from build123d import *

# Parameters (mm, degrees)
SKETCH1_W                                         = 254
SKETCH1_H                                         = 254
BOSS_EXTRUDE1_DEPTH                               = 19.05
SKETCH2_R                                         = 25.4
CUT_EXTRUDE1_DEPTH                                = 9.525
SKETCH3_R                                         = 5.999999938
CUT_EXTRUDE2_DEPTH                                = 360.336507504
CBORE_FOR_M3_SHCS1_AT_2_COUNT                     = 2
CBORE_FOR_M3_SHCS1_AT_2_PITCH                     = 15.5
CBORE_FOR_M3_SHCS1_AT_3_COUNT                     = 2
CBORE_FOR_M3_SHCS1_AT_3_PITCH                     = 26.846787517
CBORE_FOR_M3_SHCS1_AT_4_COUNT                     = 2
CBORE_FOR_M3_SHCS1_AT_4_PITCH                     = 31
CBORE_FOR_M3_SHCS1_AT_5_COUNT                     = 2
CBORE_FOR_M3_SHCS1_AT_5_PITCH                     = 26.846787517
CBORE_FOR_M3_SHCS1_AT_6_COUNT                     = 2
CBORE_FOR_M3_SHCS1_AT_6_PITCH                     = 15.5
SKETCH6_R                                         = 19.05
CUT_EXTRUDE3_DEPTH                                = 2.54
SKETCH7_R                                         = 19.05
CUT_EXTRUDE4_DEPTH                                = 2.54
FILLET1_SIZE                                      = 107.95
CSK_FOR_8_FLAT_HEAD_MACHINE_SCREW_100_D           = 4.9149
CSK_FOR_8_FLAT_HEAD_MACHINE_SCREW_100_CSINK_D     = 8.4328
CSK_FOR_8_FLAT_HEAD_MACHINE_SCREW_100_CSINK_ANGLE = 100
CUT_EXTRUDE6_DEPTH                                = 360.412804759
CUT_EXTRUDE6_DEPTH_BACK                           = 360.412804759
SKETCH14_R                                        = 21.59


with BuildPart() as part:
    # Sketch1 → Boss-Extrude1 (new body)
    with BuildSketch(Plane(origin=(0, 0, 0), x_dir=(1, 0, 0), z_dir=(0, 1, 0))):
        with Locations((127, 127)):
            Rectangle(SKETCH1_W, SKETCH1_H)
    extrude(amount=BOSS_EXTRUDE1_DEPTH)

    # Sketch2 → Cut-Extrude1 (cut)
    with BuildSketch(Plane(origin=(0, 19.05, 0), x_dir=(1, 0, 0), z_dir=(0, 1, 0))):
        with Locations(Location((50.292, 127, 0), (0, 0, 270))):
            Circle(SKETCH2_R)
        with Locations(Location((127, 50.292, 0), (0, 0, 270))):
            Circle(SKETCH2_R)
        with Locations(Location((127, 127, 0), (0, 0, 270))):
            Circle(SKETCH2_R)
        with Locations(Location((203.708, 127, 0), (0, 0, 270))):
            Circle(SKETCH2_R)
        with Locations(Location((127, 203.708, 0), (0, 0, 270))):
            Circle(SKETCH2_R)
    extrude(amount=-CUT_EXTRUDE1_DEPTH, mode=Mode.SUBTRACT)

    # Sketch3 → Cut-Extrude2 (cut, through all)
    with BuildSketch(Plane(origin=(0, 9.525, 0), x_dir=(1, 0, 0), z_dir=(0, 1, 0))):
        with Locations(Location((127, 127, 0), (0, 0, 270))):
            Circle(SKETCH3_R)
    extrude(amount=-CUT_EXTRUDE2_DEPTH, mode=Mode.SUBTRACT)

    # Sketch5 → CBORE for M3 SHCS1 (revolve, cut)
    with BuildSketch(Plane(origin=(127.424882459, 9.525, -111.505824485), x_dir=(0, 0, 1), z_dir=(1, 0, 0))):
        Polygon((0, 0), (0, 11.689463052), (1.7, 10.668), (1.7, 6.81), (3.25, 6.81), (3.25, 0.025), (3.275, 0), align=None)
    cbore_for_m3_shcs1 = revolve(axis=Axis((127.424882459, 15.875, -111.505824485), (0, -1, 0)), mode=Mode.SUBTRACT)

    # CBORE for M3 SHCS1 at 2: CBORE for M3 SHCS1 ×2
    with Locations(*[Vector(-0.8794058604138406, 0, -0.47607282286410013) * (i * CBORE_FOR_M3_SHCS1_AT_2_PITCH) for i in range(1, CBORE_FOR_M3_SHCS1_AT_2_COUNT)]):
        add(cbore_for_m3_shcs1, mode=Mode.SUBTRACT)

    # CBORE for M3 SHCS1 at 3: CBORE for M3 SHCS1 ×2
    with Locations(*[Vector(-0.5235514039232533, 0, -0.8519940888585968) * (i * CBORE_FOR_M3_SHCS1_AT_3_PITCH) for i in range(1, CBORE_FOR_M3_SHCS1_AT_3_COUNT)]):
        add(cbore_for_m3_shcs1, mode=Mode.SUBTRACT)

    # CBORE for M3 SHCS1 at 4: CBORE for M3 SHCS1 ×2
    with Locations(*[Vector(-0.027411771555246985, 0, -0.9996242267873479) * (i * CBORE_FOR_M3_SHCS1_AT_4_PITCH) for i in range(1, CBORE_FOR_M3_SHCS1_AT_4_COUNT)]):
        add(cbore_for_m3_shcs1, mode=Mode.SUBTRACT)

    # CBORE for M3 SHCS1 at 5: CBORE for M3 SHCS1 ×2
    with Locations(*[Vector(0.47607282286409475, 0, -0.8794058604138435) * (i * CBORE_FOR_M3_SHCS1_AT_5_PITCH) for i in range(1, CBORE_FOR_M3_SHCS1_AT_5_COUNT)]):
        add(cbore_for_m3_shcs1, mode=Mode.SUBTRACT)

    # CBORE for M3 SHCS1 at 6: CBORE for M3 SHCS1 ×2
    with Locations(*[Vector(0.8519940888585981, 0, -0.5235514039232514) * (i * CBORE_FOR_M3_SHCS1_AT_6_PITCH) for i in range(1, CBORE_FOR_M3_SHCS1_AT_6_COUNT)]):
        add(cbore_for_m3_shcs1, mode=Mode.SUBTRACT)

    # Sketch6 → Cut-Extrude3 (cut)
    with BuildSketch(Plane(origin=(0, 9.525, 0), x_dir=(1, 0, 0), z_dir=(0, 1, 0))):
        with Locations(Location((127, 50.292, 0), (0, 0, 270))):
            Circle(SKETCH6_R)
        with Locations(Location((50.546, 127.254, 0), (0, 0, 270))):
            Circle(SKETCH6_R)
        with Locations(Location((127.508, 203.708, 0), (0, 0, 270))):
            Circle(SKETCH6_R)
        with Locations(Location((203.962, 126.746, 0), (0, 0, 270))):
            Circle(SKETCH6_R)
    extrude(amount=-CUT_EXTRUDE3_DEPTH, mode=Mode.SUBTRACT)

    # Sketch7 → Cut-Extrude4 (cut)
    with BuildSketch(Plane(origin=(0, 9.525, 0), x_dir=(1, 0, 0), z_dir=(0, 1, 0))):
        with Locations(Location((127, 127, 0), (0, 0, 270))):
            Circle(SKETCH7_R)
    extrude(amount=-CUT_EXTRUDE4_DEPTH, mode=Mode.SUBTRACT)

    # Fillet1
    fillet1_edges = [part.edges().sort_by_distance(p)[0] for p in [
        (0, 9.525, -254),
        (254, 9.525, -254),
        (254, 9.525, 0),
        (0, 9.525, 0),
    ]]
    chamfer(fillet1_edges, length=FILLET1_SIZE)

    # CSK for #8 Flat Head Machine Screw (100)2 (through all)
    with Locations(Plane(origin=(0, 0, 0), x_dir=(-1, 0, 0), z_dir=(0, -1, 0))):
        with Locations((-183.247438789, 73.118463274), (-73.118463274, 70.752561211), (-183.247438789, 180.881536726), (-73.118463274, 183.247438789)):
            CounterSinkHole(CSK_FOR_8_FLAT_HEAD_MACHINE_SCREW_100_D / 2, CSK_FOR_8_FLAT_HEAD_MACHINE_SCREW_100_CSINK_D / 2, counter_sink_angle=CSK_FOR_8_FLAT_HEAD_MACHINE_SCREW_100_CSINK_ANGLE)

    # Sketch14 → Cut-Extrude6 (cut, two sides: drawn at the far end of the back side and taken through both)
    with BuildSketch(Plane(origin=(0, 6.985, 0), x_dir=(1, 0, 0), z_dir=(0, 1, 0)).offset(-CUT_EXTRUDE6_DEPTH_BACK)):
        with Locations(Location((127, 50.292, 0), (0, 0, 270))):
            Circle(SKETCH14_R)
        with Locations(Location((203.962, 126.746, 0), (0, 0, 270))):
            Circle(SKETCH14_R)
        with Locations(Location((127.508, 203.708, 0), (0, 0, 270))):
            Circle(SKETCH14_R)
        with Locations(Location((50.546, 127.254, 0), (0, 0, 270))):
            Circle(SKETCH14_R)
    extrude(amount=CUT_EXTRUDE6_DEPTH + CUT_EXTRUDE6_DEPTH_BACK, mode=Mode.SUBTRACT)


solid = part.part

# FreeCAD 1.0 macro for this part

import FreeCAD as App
import Part
import Sketcher
Q = App.Units.Quantity


def edges_at(feature, points):
    """Names of the edges that pass closest to the given points."""
    edges = feature.Shape.Edges
    near = lambda p: min(range(len(edges)), key=lambda i: edges[i].distToShape(Part.Vertex(*p))[0])
    return sorted({f"Edge{near(p) + 1}" for p in points})

doc = App.newDocument("Part")
params = doc.addObject("Spreadsheet::Sheet", "Params")
for row, (alias, value) in enumerate([
    ("sketch1_width", "10 in"),
    ("pad1_length", "0.75 in"),
    ("sketch2_diameter", "2 in"),
    ("pocket1_length", "0.375 in"),
    ("groove_angle", "360 deg"),
    ("linearpattern_pitch", "15.5 mm"),
    ("linearpattern2_pitch", "26.846788 mm"),
    ("linearpattern3_pitch", "31 mm"),
    ("linearpattern4_pitch", "26.846788 mm"),
    ("linearpattern5_pitch", "15.5 mm"),
    ("sketch5_diameter", "1.5 in"),
    ("pocket3_length", "0.1 in"),
    ("sketch6_diameter", "1.5 in"),
    ("pocket4_length", "0.1 in"),
    ("chamfer_size", "4.25 in"),
    ("hole_diameter", "0.1935 in"),
    ("hole_csink_diameter", "0.332 in"),
    ("sketch8_diameter", "1.7 in"),
], start=1):
    params.set(f"A{row}", alias)
    params.set(f"B{row}", "=" + value)
    params.setAlias(f"B{row}", alias)

body = doc.addObject("PartDesign::Body", "Body")

# Sketch on XZ plane
sketch1 = body.newObject("Sketcher::SketchObject", "Sketch")
sketch1.AttachmentSupport = (doc.getObject("XZ_Plane"), [""])
sketch1.MapMode = "FlatFace"
sketch1.addGeometry(Part.LineSegment(App.Vector(0, -254, 0), App.Vector(0, 0, 0)), False)
sketch1.addGeometry(Part.LineSegment(App.Vector(0, 0, 0), App.Vector(254, 0, 0)), False)
sketch1.addGeometry(Part.LineSegment(App.Vector(254, 0, 0), App.Vector(254, -254, 0)), False)
sketch1.addGeometry(Part.LineSegment(App.Vector(254, -254, 0), App.Vector(0, -254, 0)), False)
sketch1.addConstraint(Sketcher.Constraint("Coincident", 0, 2, 1, 1))
sketch1.addConstraint(Sketcher.Constraint("Coincident", 1, 2, 2, 1))
sketch1.addConstraint(Sketcher.Constraint("Coincident", 2, 2, 3, 1))
sketch1.addConstraint(Sketcher.Constraint("Coincident", 3, 2, 0, 1))
sketch1.addConstraint(Sketcher.Constraint("Vertical", 0))
sketch1.addConstraint(Sketcher.Constraint("Horizontal", 1))
sketch1.addConstraint(Sketcher.Constraint("Vertical", 2))
sketch1.addConstraint(Sketcher.Constraint("Horizontal", 3))
sketch1.addConstraint(Sketcher.Constraint("Coincident", 0, 2, -1, 1))
sketch1.addConstraint(Sketcher.Constraint("Equal", 3, 0))
sketch1.addConstraint(Sketcher.Constraint("DistanceX", 1, 1, 1, 2, Q("10 in")))
sketch1.setExpression("Constraints[10]", "Params.sketch1_width")
pad1 = body.newObject("PartDesign::Pad", "Pad")
pad1.Profile = sketch1
pad1.setExpression("Length", "Params.pad1_length")
pad1.Reversed = True

# Sketch on XZ plane
sketch2 = body.newObject("Sketcher::SketchObject", "Sketch001")
sketch2.AttachmentSupport = (doc.getObject("XZ_Plane"), [""])
sketch2.MapMode = "FlatFace"
sketch2.AttachmentOffset = App.Placement(App.Vector(0, 0, -0.75 * 25.4), App.Rotation())
sketch2.addGeometry(Part.Circle(App.Vector(50, -127, 0), App.Vector(0, 0, 1), 25), False)
sketch2.addGeometry(Part.Circle(App.Vector(127, -50, 0), App.Vector(0, 0, 1), 25), False)
sketch2.addGeometry(Part.Circle(App.Vector(127, -127, 0), App.Vector(0, 0, 1), 25), False)
sketch2.addGeometry(Part.Circle(App.Vector(204, -127, 0), App.Vector(0, 0, 1), 25), False)
sketch2.addGeometry(Part.Circle(App.Vector(127, -204, 0), App.Vector(0, 0, 1), 25), False)
sketch2.addConstraint(Sketcher.Constraint("Equal", 0, 1))
sketch2.addConstraint(Sketcher.Constraint("Equal", 1, 2))
sketch2.addConstraint(Sketcher.Constraint("Equal", 2, 3))
sketch2.addConstraint(Sketcher.Constraint("Equal", 3, 4))
sketch2.addConstraint(Sketcher.Constraint("Horizontal", 0, 3, 2, 3))
sketch2.addConstraint(Sketcher.Constraint("Horizontal", 2, 3, 3, 3))
sketch2.addConstraint(Sketcher.Constraint("Vertical", 1, 3, 2, 3))
sketch2.addConstraint(Sketcher.Constraint("Vertical", 2, 3, 4, 3))
sketch2.addConstraint(Sketcher.Constraint("Diameter", 0, Q("2 in")))
sketch2.addConstraint(Sketcher.Constraint("DistanceY", 0, 3, -1, 1, Q("5 in")))
sketch2.addConstraint(Sketcher.Constraint("DistanceX", -1, 1, 1, 3, Q("5 in")))
sketch2.addConstraint(Sketcher.Constraint("DistanceX", -1, 1, 0, 3, Q("1.98 in")))
sketch2.addConstraint(Sketcher.Constraint("DistanceY", 1, 3, -1, 1, Q("1.98 in")))
sketch2.addConstraint(Sketcher.Constraint("DistanceX", -1, 1, 3, 3, Q("8.02 in")))
sketch2.addConstraint(Sketcher.Constraint("DistanceY", 4, 3, -1, 1, Q("8.02 in")))
sketch2.setExpression("Constraints[8]", "Params.sketch2_diameter")
pocket1 = body.newObject("PartDesign::Pocket", "Pocket")
pocket1.Profile = sketch2
pocket1.setExpression("Length", "Params.pocket1_length")
pocket1.Reversed = True

# Sketch on XZ plane
sketch3 = body.newObject("Sketcher::SketchObject", "Sketch002")
sketch3.AttachmentSupport = (doc.getObject("XZ_Plane"), [""])
sketch3.MapMode = "FlatFace"
sketch3.AttachmentOffset = App.Placement(App.Vector(0, 0, -0.375 * 25.4), App.Rotation())
sketch3.addGeometry(Part.Circle(App.Vector(127, -127, 0), App.Vector(0, 0, 1), 6), False)
sketch3.addConstraint(Sketcher.Constraint("DistanceX", -1, 1, 0, 3, Q("5 in")))
sketch3.addConstraint(Sketcher.Constraint("DistanceY", 0, 3, -1, 1, Q("5 in")))
sketch3.addConstraint(Sketcher.Constraint("Diameter", 0, 12.0))
pocket2 = body.newObject("PartDesign::Pocket", "Pocket001")
pocket2.Profile = sketch3
pocket2.Type = "ThroughAll"
pocket2.Reversed = True

# Sketch on YZ plane
sketch4 = body.newObject("Sketcher::SketchObject", "Sketch003")
sketch4.AttachmentSupport = (doc.getObject("YZ_Plane"), [""])
sketch4.MapMode = "FlatFace"
sketch4.AttachmentOffset = App.Placement(App.Vector(0, 0, 127.424882), App.Rotation())
sketch4.addGeometry(Part.LineSegment(App.Vector(-2.164463, -111.505824, 0), App.Vector(9.525, -111.505824, 0)), False)
sketch4.addGeometry(Part.LineSegment(App.Vector(9.525, -111.505824, 0), App.Vector(9.525, -108.230824, 0)), False)
sketch4.addGeometry(Part.LineSegment(App.Vector(9.525, -108.230824, 0), App.Vector(9.5, -108.255824, 0)), False)
sketch4.addGeometry(Part.LineSegment(App.Vector(9.5, -108.255824, 0), App.Vector(2.715, -108.255824, 0)), False)
sketch4.addGeometry(Part.LineSegment(App.Vector(2.715, -108.255824, 0), App.Vector(2.715, -109.805824, 0)), False)
sketch4.addGeometry(Part.LineSegment(App.Vector(2.715, -109.805824, 0), App.Vector(-1.143, -109.805824, 0)), False)
sketch4.addGeometry(Part.LineSegment(App.Vector(-1.143, -109.805824, 0), App.Vector(-2.164463, -111.505824, 0)), False)
sketch4.addGeometry(Part.LineSegment(App.Vector(9.525, -111.505824, 0), App.Vector(-2.164463, -111.505824, 0)), True)  # axis
sketch4.addConstraint(Sketcher.Constraint("Coincident", 0, 2, 1, 1))
sketch4.addConstraint(Sketcher.Constraint("Coincident", 1, 2, 2, 1))
sketch4.addConstraint(Sketcher.Constraint("Coincident", 2, 2, 3, 1))
sketch4.addConstraint(Sketcher.Constraint("Coincident", 3, 2, 4, 1))
sketch4.addConstraint(Sketcher.Constraint("Coincident", 4, 2, 5, 1))
sketch4.addConstraint(Sketcher.Constraint("Coincident", 5, 2, 6, 1))
sketch4.addConstraint(Sketcher.Constraint("Coincident", 6, 2, 0, 1))
sketch4.addConstraint(Sketcher.Constraint("Horizontal", 0))
sketch4.addConstraint(Sketcher.Constraint("Vertical", 1))
sketch4.addConstraint(Sketcher.Constraint("Horizontal", 3))
sketch4.addConstraint(Sketcher.Constraint("Vertical", 4))
sketch4.addConstraint(Sketcher.Constraint("Horizontal", 5))
sketch4.addConstraint(Sketcher.Constraint("Horizontal", 7))
sketch4.addConstraint(Sketcher.Constraint("Coincident", 7, 1, 0, 2))
sketch4.addConstraint(Sketcher.Constraint("Equal", 0, 7))
sketch4.addConstraint(Sketcher.Constraint("Angle", 2, Q("-135 deg")))
sketch4.addConstraint(Sketcher.Constraint("Angle", 6, Q("-121 deg")))
sketch4.addConstraint(Sketcher.Constraint("DistanceX", 5, 2, 1, 2, Q("0.42 in")))
sketch4.addConstraint(Sketcher.Constraint("DistanceX", -1, 1, 0, 2, Q("0.375 in")))
sketch4.addConstraint(Sketcher.Constraint("DistanceX", 3, 2, 3, 1, 6.785))
sketch4.addConstraint(Sketcher.Constraint("DistanceX", 5, 2, 5, 1, 3.858))
sketch4.addConstraint(Sketcher.Constraint("DistanceY", 1, 1, 1, 2, 3.275))
sketch4.addConstraint(Sketcher.Constraint("DistanceY", 4, 2, 4, 1, 1.55))
sketch4.addConstraint(Sketcher.Constraint("DistanceY", 0, 2, -1, 1, 111.505824))
groove = body.newObject("PartDesign::Groove", "Groove")
groove.Profile = sketch4
groove.ReferenceAxis = (sketch4, ["Axis0"])
groove.setExpression("Angle", "Params.groove_angle")
doc.recompute()

datumline = body.newObject("PartDesign::Line", "DatumLine")
datumline.Placement = App.Placement(App.Vector(0, 0, 0), App.Rotation(App.Vector(0, 0, 1), App.Vector(-0.87940586, 0, -0.476072823)))
linearpattern = body.newObject("PartDesign::LinearPattern", "LinearPattern")
linearpattern.Originals = [groove]
linearpattern.Direction = (datumline, [""])
linearpattern.Mode = "offset"
linearpattern.setExpression("Offset", "Params.linearpattern_pitch")
linearpattern.Occurrences = 2
body.Tip = linearpattern
doc.recompute()

datumline2 = body.newObject("PartDesign::Line", "DatumLine001")
datumline2.Placement = App.Placement(App.Vector(0, 0, 0), App.Rotation(App.Vector(0, 0, 1), App.Vector(-0.523551404, 0, -0.851994089)))
linearpattern2 = body.newObject("PartDesign::LinearPattern", "LinearPattern001")
linearpattern2.Originals = [groove]
linearpattern2.Direction = (datumline2, [""])
linearpattern2.Mode = "offset"
linearpattern2.setExpression("Offset", "Params.linearpattern2_pitch")
linearpattern2.Occurrences = 2
body.Tip = linearpattern2
doc.recompute()

datumline3 = body.newObject("PartDesign::Line", "DatumLine002")
datumline3.Placement = App.Placement(App.Vector(0, 0, 0), App.Rotation(App.Vector(0, 0, 1), App.Vector(-0.027411772, 0, -0.999624227)))
linearpattern3 = body.newObject("PartDesign::LinearPattern", "LinearPattern002")
linearpattern3.Originals = [groove]
linearpattern3.Direction = (datumline3, [""])
linearpattern3.Mode = "offset"
linearpattern3.setExpression("Offset", "Params.linearpattern3_pitch")
linearpattern3.Occurrences = 2
body.Tip = linearpattern3
doc.recompute()

datumline4 = body.newObject("PartDesign::Line", "DatumLine003")
datumline4.Placement = App.Placement(App.Vector(0, 0, 0), App.Rotation(App.Vector(0, 0, 1), App.Vector(0.476072823, 0, -0.87940586)))
linearpattern4 = body.newObject("PartDesign::LinearPattern", "LinearPattern003")
linearpattern4.Originals = [groove]
linearpattern4.Direction = (datumline4, [""])
linearpattern4.Mode = "offset"
linearpattern4.setExpression("Offset", "Params.linearpattern4_pitch")
linearpattern4.Occurrences = 2
body.Tip = linearpattern4
doc.recompute()

datumline5 = body.newObject("PartDesign::Line", "DatumLine004")
datumline5.Placement = App.Placement(App.Vector(0, 0, 0), App.Rotation(App.Vector(0, 0, 1), App.Vector(0.851994089, 0, -0.523551404)))
linearpattern5 = body.newObject("PartDesign::LinearPattern", "LinearPattern004")
linearpattern5.Originals = [groove]
linearpattern5.Direction = (datumline5, [""])
linearpattern5.Mode = "offset"
linearpattern5.setExpression("Offset", "Params.linearpattern5_pitch")
linearpattern5.Occurrences = 2
body.Tip = linearpattern5

# Sketch on XZ plane
sketch5 = body.newObject("Sketcher::SketchObject", "Sketch004")
sketch5.AttachmentSupport = (doc.getObject("XZ_Plane"), [""])
sketch5.MapMode = "FlatFace"
sketch5.AttachmentOffset = App.Placement(App.Vector(0, 0, -0.375 * 25.4), App.Rotation())
sketch5.addGeometry(Part.Circle(App.Vector(127, -50, 0), App.Vector(0, 0, 1), 19), False)
sketch5.addGeometry(Part.Circle(App.Vector(51, -127, 0), App.Vector(0, 0, 1), 19), False)
sketch5.addGeometry(Part.Circle(App.Vector(128, -204, 0), App.Vector(0, 0, 1), 19), False)
sketch5.addGeometry(Part.Circle(App.Vector(204, -127, 0), App.Vector(0, 0, 1), 19), False)
sketch5.addConstraint(Sketcher.Constraint("Equal", 0, 1))
sketch5.addConstraint(Sketcher.Constraint("Equal", 1, 2))
sketch5.addConstraint(Sketcher.Constraint("Equal", 2, 3))
sketch5.addConstraint(Sketcher.Constraint("Diameter", 0, Q("1.5 in")))
sketch5.addConstraint(Sketcher.Constraint("DistanceX", -1, 1, 0, 3, Q("5 in")))
sketch5.addConstraint(Sketcher.Constraint("DistanceY", 0, 3, -1, 1, Q("1.98 in")))
sketch5.addConstraint(Sketcher.Constraint("DistanceX", -1, 1, 1, 3, Q("1.99 in")))
sketch5.addConstraint(Sketcher.Constraint("DistanceY", 1, 3, -1, 1, Q("5.01 in")))
sketch5.addConstraint(Sketcher.Constraint("DistanceX", -1, 1, 2, 3, Q("5.02 in")))
sketch5.addConstraint(Sketcher.Constraint("DistanceY", 2, 3, -1, 1, Q("8.02 in")))
sketch5.addConstraint(Sketcher.Constraint("DistanceX", -1, 1, 3, 3, Q("8.03 in")))
sketch5.addConstraint(Sketcher.Constraint("DistanceY", 3, 3, -1, 1, Q("4.99 in")))
sketch5.setExpression("Constraints[3]", "Params.sketch5_diameter")
pocket3 = body.newObject("PartDesign::Pocket", "Pocket002")
pocket3.Profile = sketch5
pocket3.setExpression("Length", "Params.pocket3_length")
pocket3.Reversed = True

# Sketch on XZ plane
sketch6 = body.newObject("Sketcher::SketchObject", "Sketch005")
sketch6.AttachmentSupport = (doc.getObject("XZ_Plane"), [""])
sketch6.MapMode = "FlatFace"
sketch6.AttachmentOffset = App.Placement(App.Vector(0, 0, -0.375 * 25.4), App.Rotation())
sketch6.addGeometry(Part.Circle(App.Vector(127, -127, 0), App.Vector(0, 0, 1), 19), False)
sketch6.addConstraint(Sketcher.Constraint("Diameter", 0, Q("1.5 in")))
sketch6.addConstraint(Sketcher.Constraint("DistanceX", -1, 1, 0, 3, Q("5 in")))
sketch6.addConstraint(Sketcher.Constraint("DistanceY", 0, 3, -1, 1, Q("5 in")))
sketch6.setExpression("Constraints[0]", "Params.sketch6_diameter")
pocket4 = body.newObject("PartDesign::Pocket", "Pocket003")
pocket4.Profile = sketch6
pocket4.setExpression("Length", "Params.pocket4_length")
pocket4.Reversed = True
doc.recompute()

chamfer = body.newObject("PartDesign::Chamfer", "Chamfer")
chamfer.Base = (pocket4, edges_at(pocket4, [
    (0, 9.525, -254),
    (254, 9.525, -254),
    (254, 9.525, 0),
    (0, 9.525, 0),
]))
chamfer.setExpression("Size", "Params.chamfer_size")

# Sketch on XZ plane
sketch7 = body.newObject("Sketcher::SketchObject", "Sketch006")
sketch7.AttachmentSupport = (doc.getObject("XZ_Plane"), [""])
sketch7.MapMode = "FlatFace"
sketch7.addGeometry(Part.Circle(App.Vector(183.2, -73.1, 0), App.Vector(0, 0, 1), 2.5), False)
sketch7.addGeometry(Part.Circle(App.Vector(73.1, -70.8, 0), App.Vector(0, 0, 1), 2.5), False)
sketch7.addGeometry(Part.Circle(App.Vector(183.2, -180.9, 0), App.Vector(0, 0, 1), 2.5), False)
sketch7.addGeometry(Part.Circle(App.Vector(73.1, -183.2, 0), App.Vector(0, 0, 1), 2.5), False)
sketch7.addConstraint(Sketcher.Constraint("Equal", 0, 1))
sketch7.addConstraint(Sketcher.Constraint("Equal", 1, 2))
sketch7.addConstraint(Sketcher.Constraint("Equal", 2, 3))
sketch7.addConstraint(Sketcher.Constraint("Vertical", 0, 3, 2, 3))
sketch7.addConstraint(Sketcher.Constraint("Vertical", 1, 3, 3, 3))
sketch7.addConstraint(Sketcher.Constraint("Diameter", 0, Q("0.1935 in")))
sketch7.addConstraint(Sketcher.Constraint("DistanceX", -1, 1, 0, 3, 183.247439))
sketch7.addConstraint(Sketcher.Constraint("DistanceY", 1, 3, -1, 1, 70.752561))
sketch7.addConstraint(Sketcher.Constraint("DistanceY", 3, 3, -1, 1, 183.247439))
sketch7.addConstraint(Sketcher.Constraint("DistanceY", 0, 3, -1, 1, 73.118463))
sketch7.addConstraint(Sketcher.Constraint("DistanceX", -1, 1, 1, 3, 73.118463))
sketch7.addConstraint(Sketcher.Constraint("DistanceY", 2, 3, -1, 1, 180.881537))
doc.recompute()
hole = body.newObject("PartDesign::Hole", "Hole")
hole.Profile = sketch7
hole.ThreadType = "None"
hole.setExpression("Diameter", "Params.hole_diameter")
hole.DepthType = "ThroughAll"
hole.HoleCutType = "Countersink"
hole.setExpression("HoleCutDiameter", "Params.hole_csink_diameter")
hole.HoleCutCountersinkAngle = 100

# Sketch on XZ plane
sketch8 = body.newObject("Sketcher::SketchObject", "Sketch007")
sketch8.AttachmentSupport = (doc.getObject("XZ_Plane"), [""])
sketch8.MapMode = "FlatFace"
sketch8.AttachmentOffset = App.Placement(App.Vector(0, 0, -0.275 * 25.4), App.Rotation())
sketch8.addGeometry(Part.Circle(App.Vector(127, -50, 0), App.Vector(0, 0, 1), 22), False)
sketch8.addGeometry(Part.Circle(App.Vector(204, -127, 0), App.Vector(0, 0, 1), 22), False)
sketch8.addGeometry(Part.Circle(App.Vector(128, -204, 0), App.Vector(0, 0, 1), 22), False)
sketch8.addGeometry(Part.Circle(App.Vector(51, -127, 0), App.Vector(0, 0, 1), 22), False)
sketch8.addConstraint(Sketcher.Constraint("Equal", 0, 1))
sketch8.addConstraint(Sketcher.Constraint("Equal", 1, 2))
sketch8.addConstraint(Sketcher.Constraint("Equal", 2, 3))
sketch8.addConstraint(Sketcher.Constraint("Diameter", 0, Q("1.7 in")))
sketch8.addConstraint(Sketcher.Constraint("DistanceX", -1, 1, 0, 3, Q("5 in")))
sketch8.addConstraint(Sketcher.Constraint("DistanceY", 0, 3, -1, 1, Q("1.98 in")))
sketch8.addConstraint(Sketcher.Constraint("DistanceX", -1, 1, 1, 3, Q("8.03 in")))
sketch8.addConstraint(Sketcher.Constraint("DistanceY", 1, 3, -1, 1, Q("4.99 in")))
sketch8.addConstraint(Sketcher.Constraint("DistanceX", -1, 1, 2, 3, Q("5.02 in")))
sketch8.addConstraint(Sketcher.Constraint("DistanceY", 2, 3, -1, 1, Q("8.02 in")))
sketch8.addConstraint(Sketcher.Constraint("DistanceX", -1, 1, 3, 3, Q("1.99 in")))
sketch8.addConstraint(Sketcher.Constraint("DistanceY", 3, 3, -1, 1, Q("5.01 in")))
sketch8.setExpression("Constraints[3]", "Params.sketch8_diameter")
pocket5 = body.newObject("PartDesign::Pocket", "Pocket004")
pocket5.Profile = sketch8
pocket5.Type = "ThroughAll"
pocket5.Midplane = True

doc.recompute()
